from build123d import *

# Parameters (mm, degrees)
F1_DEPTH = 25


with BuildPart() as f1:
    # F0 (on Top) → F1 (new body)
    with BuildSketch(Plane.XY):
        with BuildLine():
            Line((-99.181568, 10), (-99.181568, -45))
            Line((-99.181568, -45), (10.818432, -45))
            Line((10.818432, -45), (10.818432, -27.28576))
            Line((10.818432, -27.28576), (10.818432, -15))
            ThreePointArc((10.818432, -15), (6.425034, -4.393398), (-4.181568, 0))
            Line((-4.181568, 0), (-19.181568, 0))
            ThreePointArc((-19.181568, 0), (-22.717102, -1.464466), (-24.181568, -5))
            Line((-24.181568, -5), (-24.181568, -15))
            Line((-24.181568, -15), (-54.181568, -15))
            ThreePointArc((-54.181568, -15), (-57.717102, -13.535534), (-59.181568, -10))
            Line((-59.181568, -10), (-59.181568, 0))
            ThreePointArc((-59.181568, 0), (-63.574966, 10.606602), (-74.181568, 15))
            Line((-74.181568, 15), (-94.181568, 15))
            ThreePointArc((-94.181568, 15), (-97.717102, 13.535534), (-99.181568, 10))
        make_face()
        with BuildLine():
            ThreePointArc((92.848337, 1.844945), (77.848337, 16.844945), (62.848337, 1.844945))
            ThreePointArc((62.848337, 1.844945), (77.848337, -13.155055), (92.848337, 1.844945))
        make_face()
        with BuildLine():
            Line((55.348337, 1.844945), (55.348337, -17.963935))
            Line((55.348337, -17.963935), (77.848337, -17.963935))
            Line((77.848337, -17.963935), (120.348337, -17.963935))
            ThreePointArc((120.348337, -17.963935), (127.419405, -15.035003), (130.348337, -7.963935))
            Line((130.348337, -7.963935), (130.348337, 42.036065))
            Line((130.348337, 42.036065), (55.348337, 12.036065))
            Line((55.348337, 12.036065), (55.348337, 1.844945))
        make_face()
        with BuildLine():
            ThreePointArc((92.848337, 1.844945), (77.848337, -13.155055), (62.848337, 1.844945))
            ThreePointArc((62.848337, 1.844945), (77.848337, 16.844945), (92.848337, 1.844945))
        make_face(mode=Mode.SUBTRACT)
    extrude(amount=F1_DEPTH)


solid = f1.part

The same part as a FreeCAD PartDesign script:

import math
import FreeCAD as App
import Part
import Sketcher

V = App.Vector
Q = App.Units.Quantity

doc = App.newDocument("Part")
body = doc.addObject("PartDesign::Body", "Body")
body.AllowCompound = True

# Sketch on XY plane
sketch1 = body.newObject("Sketcher::SketchObject", "Sketch")
sketch1.AttachmentSupport = (doc.getObject("XY_Plane"), [""])
sketch1.MapMode = "FlatFace"
sketch1.addGeometry([
    Part.LineSegment(V(-99.2, 10, 0), V(-99.2, -45, 0)),  # 0
    Part.LineSegment(V(-99.2, -45, 0), V(10.8, -45, 0)),  # 1
    Part.LineSegment(V(10.8, -45, 0), V(10.8, -15, 0)),  # 2
    Part.ArcOfCircle(Part.Circle(V(-4.2, -15, 0), V(0, 0, 1), 15), math.radians(0), math.radians(90)),  # 3
    Part.LineSegment(V(-4.2, 0, 0), V(-19.2, 0, 0)),  # 4
    Part.ArcOfCircle(Part.Circle(V(-19.2, -5, 0), V(0, 0, 1), 5), math.radians(90), math.radians(180)),  # 5
    Part.LineSegment(V(-24.2, -5, 0), V(-24.2, -15, 0)),  # 6
    Part.LineSegment(V(-24.2, -15, 0), V(-54.2, -15, 0)),  # 7
    Part.ArcOfCircle(Part.Circle(V(-54.2, -10, 0), V(0, 0, 1), 5), math.radians(180), math.radians(270)),  # 8
    Part.LineSegment(V(-59.2, -10, 0), V(-59.2, 0, 0)),  # 9
    Part.ArcOfCircle(Part.Circle(V(-74.2, 0, 0), V(0, 0, 1), 15), math.radians(0), math.radians(90)),  # 10
    Part.LineSegment(V(-74.2, 15, 0), V(-94.2, 15, 0)),  # 11
    Part.ArcOfCircle(Part.Circle(V(-94.2, 10, 0), V(0, 0, 1), 5), math.radians(90), math.radians(180)),  # 12
    Part.LineSegment(V(55.3, -18, 0), V(120.3, -18, 0)),  # 13
    Part.ArcOfCircle(Part.Circle(V(120.3, -8, 0), V(0, 0, 1), 10), math.radians(-90), math.radians(0)),  # 14
    Part.LineSegment(V(130.3, -8, 0), V(130.3, 42, 0)),  # 15
    Part.LineSegment(V(130.3, 42, 0), V(55.3, 12, 0)),  # 16
    Part.LineSegment(V(55.3, 12, 0), V(55.3, -18, 0)),  # 17
    Part.Circle(V(77.8, 1.8, 0), V(0, 0, 1), 15),  # 18
], False)
sketch1.addConstraint([
    Sketcher.Constraint("Coincident", 0, 2, 1, 1),
    Sketcher.Constraint("Coincident", 1, 2, 2, 1),
    Sketcher.Constraint("Tangent", 2, 2, 3, 1),
    Sketcher.Constraint("Tangent", 3, 2, 4, 1),
    Sketcher.Constraint("Tangent", 4, 2, 5, 1),
    Sketcher.Constraint("Tangent", 5, 2, 6, 1),
    Sketcher.Constraint("Coincident", 6, 2, 7, 1),
    Sketcher.Constraint("Tangent", 7, 2, 8, 2),
    Sketcher.Constraint("Tangent", 8, 1, 9, 1),
    Sketcher.Constraint("Tangent", 9, 2, 10, 1),
    Sketcher.Constraint("Tangent", 10, 2, 11, 1),
    Sketcher.Constraint("Tangent", 11, 2, 12, 1),
    Sketcher.Constraint("Tangent", 12, 2, 0, 1),
    Sketcher.Constraint("Tangent", 13, 2, 14, 1),
    Sketcher.Constraint("Tangent", 14, 2, 15, 1),
    Sketcher.Constraint("Coincident", 15, 2, 16, 1),
    Sketcher.Constraint("Coincident", 16, 2, 17, 1),
    Sketcher.Constraint("Coincident", 17, 2, 13, 1),
    Sketcher.Constraint("Vertical", 0),
    Sketcher.Constraint("Horizontal", 1),
    Sketcher.Constraint("Vertical", 2),
    Sketcher.Constraint("Horizontal", 4),
    Sketcher.Constraint("Vertical", 6),
    Sketcher.Constraint("Horizontal", 7),
    Sketcher.Constraint("Vertical", 9),
    Sketcher.Constraint("Horizontal", 11),
    Sketcher.Constraint("Horizontal", 13),
    Sketcher.Constraint("Vertical", 15),
    Sketcher.Constraint("Vertical", 17),
    Sketcher.Constraint("Equal", 5, 8),
    Sketcher.Constraint("Equal", 3, 10),
    Sketcher.Constraint("Equal", 8, 12),
    Sketcher.Constraint("Equal", 10, 18),
    Sketcher.Constraint("PointOnObject", 10, 3, -1),
    Sketcher.Constraint("PointOnObject", 3, 2, -1),
    Sketcher.Constraint("Horizontal", 2, 2, 6, 2),
    Sketcher.Constraint("Equal", 7, 2),
    Sketcher.Constraint("Equal", 2, 17),
    Sketcher.Constraint("Diameter", 18, Q("30 mm")),
    Sketcher.Constraint("Radius", 5, Q("5 mm")),
    Sketcher.Constraint("Radius", 14, Q("9.999999 mm")),
    Sketcher.Constraint("DistanceX", 1, 1, 1, 2, Q("110 mm")),
    Sketcher.Constraint("DistanceX", 4, 2, 4, 1, Q("15 mm")),
    Sketcher.Constraint("DistanceX", 7, 2, 7, 1, Q("30 mm")),
    Sketcher.Constraint("DistanceX", 13, 1, 13, 2, Q("65 mm")),
    Sketcher.Constraint("DistanceY", 15, 1, 15, 2, Q("50 mm")),
    Sketcher.Constraint("DistanceX", 18, 3, 14, 3, Q("42.500001 mm")),
    Sketcher.Constraint("DistanceX", 5, 3, -1, 1, Q("19.181568 mm")),
    Sketcher.Constraint("DistanceY", 14, 3, 18, 3, Q("9.808881 mm")),
    Sketcher.Constraint("DistanceX", -1, 1, 14, 3, Q("120.348338 mm")),
    Sketcher.Constraint("DistanceY", 14, 3, -1, 1, Q("7.963936 mm")),
])
pad1 = body.newObject("PartDesign::Pad", "Pad")
pad1.Profile = sketch1
pad1.Length = 25

doc.recompute()
